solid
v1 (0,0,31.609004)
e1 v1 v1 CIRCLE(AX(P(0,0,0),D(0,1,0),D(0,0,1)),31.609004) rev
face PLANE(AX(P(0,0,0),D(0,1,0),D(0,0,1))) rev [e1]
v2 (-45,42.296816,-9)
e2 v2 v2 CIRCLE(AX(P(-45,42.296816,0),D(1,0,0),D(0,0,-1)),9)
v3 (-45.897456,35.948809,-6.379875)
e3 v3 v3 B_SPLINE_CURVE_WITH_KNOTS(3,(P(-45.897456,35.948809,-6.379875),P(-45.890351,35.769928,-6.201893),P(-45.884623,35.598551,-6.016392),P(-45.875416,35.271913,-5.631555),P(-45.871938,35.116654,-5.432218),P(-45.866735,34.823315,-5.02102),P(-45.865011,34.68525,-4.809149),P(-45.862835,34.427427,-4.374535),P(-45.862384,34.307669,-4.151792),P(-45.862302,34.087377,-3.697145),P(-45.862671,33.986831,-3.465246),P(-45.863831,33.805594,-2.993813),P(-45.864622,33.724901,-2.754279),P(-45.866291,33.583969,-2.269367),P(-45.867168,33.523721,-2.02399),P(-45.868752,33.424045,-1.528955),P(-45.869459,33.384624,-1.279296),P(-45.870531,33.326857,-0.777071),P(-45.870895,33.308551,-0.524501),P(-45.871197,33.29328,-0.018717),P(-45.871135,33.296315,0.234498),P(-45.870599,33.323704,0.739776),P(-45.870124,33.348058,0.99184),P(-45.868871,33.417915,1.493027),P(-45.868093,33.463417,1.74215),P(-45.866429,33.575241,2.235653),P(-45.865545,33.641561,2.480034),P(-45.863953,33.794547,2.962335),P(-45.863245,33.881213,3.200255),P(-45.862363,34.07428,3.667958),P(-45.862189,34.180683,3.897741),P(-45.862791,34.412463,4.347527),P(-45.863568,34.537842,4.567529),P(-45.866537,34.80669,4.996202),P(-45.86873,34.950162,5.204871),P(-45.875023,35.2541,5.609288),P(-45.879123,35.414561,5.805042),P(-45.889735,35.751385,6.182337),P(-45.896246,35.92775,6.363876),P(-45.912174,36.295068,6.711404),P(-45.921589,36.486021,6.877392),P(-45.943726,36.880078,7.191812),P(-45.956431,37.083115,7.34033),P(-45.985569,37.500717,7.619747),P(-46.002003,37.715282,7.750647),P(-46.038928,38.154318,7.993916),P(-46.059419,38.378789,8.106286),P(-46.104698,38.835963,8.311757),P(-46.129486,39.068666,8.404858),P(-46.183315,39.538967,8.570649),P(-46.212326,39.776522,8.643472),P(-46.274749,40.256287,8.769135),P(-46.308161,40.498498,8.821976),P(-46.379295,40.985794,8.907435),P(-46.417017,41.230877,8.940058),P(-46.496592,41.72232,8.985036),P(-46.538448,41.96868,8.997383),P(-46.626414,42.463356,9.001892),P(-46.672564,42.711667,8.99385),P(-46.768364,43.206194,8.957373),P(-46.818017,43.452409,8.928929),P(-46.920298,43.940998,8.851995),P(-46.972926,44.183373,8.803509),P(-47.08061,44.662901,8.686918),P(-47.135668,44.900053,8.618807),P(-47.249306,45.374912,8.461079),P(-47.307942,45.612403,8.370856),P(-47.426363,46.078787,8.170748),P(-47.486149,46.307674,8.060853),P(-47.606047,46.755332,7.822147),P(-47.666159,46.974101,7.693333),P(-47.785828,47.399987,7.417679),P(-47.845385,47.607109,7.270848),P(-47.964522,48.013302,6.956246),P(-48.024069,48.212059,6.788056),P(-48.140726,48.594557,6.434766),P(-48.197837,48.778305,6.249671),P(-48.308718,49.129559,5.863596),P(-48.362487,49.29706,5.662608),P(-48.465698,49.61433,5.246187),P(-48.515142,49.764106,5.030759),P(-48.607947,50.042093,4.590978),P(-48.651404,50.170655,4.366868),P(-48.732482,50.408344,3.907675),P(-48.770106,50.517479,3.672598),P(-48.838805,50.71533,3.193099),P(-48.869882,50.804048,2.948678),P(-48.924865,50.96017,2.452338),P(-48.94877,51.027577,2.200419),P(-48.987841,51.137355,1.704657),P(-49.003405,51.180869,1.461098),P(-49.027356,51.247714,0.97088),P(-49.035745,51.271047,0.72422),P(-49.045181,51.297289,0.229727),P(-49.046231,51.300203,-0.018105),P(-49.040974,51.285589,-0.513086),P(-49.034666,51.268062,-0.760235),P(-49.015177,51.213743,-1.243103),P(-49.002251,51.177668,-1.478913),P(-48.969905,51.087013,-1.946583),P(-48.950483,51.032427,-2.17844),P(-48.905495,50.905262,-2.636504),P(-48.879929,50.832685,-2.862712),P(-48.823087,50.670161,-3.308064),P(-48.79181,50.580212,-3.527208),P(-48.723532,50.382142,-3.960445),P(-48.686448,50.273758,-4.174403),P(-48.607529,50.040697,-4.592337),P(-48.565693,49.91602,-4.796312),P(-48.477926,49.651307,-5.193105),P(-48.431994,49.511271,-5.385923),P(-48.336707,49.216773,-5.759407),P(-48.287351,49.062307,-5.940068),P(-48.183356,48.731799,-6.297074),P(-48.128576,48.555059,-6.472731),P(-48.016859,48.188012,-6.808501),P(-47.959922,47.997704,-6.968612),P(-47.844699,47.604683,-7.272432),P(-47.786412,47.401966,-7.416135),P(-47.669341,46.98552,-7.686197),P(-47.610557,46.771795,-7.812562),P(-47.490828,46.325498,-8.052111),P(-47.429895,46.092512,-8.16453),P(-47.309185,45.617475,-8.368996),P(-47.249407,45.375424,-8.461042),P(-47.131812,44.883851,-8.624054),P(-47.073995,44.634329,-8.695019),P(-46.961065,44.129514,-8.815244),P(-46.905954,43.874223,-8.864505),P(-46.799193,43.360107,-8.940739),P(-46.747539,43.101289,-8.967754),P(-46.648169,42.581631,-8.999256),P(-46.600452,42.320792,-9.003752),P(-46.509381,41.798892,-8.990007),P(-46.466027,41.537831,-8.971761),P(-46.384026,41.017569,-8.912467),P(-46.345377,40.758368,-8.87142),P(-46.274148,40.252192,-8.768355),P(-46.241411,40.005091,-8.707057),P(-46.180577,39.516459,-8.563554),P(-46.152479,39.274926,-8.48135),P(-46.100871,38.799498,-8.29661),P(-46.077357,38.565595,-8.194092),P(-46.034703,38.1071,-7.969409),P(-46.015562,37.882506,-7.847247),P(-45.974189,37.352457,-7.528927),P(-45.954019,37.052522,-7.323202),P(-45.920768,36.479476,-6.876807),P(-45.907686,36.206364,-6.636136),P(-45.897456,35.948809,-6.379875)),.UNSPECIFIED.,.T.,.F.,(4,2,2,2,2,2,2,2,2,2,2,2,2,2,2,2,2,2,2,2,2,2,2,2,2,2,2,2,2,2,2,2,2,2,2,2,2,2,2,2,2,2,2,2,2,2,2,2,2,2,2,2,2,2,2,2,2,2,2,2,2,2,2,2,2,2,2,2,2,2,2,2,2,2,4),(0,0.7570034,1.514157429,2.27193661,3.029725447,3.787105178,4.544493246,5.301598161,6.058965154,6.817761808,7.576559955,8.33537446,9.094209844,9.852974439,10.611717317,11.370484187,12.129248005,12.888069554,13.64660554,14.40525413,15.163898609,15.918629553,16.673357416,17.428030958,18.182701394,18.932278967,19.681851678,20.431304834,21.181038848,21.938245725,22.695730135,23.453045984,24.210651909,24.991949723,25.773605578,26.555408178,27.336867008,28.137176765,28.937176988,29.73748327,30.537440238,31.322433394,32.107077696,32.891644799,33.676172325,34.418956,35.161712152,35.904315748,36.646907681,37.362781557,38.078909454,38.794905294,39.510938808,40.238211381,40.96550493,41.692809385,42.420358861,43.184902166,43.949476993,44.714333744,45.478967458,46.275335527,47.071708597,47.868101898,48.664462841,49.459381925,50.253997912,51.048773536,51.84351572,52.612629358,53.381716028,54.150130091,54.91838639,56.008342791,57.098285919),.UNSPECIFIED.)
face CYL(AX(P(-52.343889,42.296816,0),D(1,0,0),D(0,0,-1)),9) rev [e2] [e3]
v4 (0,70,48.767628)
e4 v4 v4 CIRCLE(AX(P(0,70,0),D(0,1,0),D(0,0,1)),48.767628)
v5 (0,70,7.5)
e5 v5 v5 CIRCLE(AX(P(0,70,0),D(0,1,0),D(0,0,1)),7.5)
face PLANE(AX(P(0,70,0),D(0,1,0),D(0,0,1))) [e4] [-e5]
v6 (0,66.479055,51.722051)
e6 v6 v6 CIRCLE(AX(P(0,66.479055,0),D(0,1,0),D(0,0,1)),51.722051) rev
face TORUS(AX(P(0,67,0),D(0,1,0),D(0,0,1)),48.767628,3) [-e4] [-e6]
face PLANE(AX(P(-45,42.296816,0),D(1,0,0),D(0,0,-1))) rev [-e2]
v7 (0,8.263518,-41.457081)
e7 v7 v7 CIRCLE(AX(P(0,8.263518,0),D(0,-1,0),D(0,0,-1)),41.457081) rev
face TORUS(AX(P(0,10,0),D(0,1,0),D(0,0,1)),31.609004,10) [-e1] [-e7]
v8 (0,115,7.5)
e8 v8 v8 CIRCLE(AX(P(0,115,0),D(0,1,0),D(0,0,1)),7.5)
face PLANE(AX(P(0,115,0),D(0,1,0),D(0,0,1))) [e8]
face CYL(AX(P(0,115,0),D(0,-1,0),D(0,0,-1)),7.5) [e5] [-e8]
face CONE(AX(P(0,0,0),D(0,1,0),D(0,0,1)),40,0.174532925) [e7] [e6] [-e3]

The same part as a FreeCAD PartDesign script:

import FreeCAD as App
import Part
import Sketcher
Q = App.Units.Quantity


def edges_at(feature, points):
    """Names of the edges that pass closest to the given points."""
    edges = feature.Shape.Edges
    near = lambda p: min(range(len(edges)), key=lambda i: edges[i].distToShape(Part.Vertex(*p))[0])
    return sorted({f"Edge{near(p) + 1}" for p in points})

doc = App.newDocument("Part")
body = doc.addObject("PartDesign::Body", "Body")

# Sketch on XZ plane
sketch1 = body.newObject("Sketcher::SketchObject", "Sketch")
sketch1.AttachmentSupport = (doc.getObject("XZ_Plane"), [""])
sketch1.MapMode = "FlatFace"
sketch1.addGeometry(Part.Circle(App.Vector(0, 0, 0), App.Vector(0, 0, 1), 40), False)
sketch1.addConstraint(Sketcher.Constraint("Coincident", 0, 3, -1, 1))
sketch1.addConstraint(Sketcher.Constraint("Diameter", 0, Q("80 mm")))
pad1 = body.newObject("PartDesign::Pad", "Pad")
pad1.Profile = sketch1
pad1.Length = 70
pad1.Reversed = True
pad1.TaperAngle = 10

# Sketch on YZ plane
sketch2 = body.newObject("Sketcher::SketchObject", "Sketch001")
sketch2.AttachmentSupport = (doc.getObject("YZ_Plane"), [""])
sketch2.MapMode = "FlatFace"
sketch2.AttachmentOffset = App.Placement(App.Vector(0, 0, -45), App.Rotation())
sketch2.addGeometry(Part.Circle(App.Vector(42, 0, 0), App.Vector(0, 0, 1), 9), False)
sketch2.addConstraint(Sketcher.Constraint("PointOnObject", 0, 3, -1))
sketch2.addConstraint(Sketcher.Constraint("Diameter", 0, Q("18 mm")))
sketch2.addConstraint(Sketcher.Constraint("DistanceX", -1, 1, 0, 3, Q("42.296816 mm")))
pocket1 = body.newObject("PartDesign::Pocket", "Pocket")
pocket1.Profile = sketch2
pocket1.Type = "UpToFirst"

# Sketch on XZ plane
sketch3 = body.newObject("Sketcher::SketchObject", "Sketch002")
sketch3.AttachmentSupport = (doc.getObject("XZ_Plane"), [""])
sketch3.MapMode = "FlatFace"
sketch3.AttachmentOffset = App.Placement(App.Vector(0, 0, -70), App.Rotation())
sketch3.addGeometry(Part.Circle(App.Vector(0, 0, 0), App.Vector(0, 0, 1), 8), False)
sketch3.addConstraint(Sketcher.Constraint("Coincident", 0, 3, -1, 1))
sketch3.addConstraint(Sketcher.Constraint("Diameter", 0, Q("15 mm")))
pad2 = body.newObject("PartDesign::Pad", "Pad001")
pad2.Profile = sketch3
pad2.Length = 45
pad2.Reversed = True
doc.recompute()

fillet = body.newObject("PartDesign::Fillet", "Fillet")
fillet.Base = (pad2, edges_at(pad2, [(-40, 0, 0)]))
fillet.Radius = 10
doc.recompute()

fillet2 = body.newObject("PartDesign::Fillet", "Fillet001")
fillet2.Base = (fillet, edges_at(fillet, [(-52.343, 70, 0)]))
fillet2.Radius = 3

doc.recompute()
